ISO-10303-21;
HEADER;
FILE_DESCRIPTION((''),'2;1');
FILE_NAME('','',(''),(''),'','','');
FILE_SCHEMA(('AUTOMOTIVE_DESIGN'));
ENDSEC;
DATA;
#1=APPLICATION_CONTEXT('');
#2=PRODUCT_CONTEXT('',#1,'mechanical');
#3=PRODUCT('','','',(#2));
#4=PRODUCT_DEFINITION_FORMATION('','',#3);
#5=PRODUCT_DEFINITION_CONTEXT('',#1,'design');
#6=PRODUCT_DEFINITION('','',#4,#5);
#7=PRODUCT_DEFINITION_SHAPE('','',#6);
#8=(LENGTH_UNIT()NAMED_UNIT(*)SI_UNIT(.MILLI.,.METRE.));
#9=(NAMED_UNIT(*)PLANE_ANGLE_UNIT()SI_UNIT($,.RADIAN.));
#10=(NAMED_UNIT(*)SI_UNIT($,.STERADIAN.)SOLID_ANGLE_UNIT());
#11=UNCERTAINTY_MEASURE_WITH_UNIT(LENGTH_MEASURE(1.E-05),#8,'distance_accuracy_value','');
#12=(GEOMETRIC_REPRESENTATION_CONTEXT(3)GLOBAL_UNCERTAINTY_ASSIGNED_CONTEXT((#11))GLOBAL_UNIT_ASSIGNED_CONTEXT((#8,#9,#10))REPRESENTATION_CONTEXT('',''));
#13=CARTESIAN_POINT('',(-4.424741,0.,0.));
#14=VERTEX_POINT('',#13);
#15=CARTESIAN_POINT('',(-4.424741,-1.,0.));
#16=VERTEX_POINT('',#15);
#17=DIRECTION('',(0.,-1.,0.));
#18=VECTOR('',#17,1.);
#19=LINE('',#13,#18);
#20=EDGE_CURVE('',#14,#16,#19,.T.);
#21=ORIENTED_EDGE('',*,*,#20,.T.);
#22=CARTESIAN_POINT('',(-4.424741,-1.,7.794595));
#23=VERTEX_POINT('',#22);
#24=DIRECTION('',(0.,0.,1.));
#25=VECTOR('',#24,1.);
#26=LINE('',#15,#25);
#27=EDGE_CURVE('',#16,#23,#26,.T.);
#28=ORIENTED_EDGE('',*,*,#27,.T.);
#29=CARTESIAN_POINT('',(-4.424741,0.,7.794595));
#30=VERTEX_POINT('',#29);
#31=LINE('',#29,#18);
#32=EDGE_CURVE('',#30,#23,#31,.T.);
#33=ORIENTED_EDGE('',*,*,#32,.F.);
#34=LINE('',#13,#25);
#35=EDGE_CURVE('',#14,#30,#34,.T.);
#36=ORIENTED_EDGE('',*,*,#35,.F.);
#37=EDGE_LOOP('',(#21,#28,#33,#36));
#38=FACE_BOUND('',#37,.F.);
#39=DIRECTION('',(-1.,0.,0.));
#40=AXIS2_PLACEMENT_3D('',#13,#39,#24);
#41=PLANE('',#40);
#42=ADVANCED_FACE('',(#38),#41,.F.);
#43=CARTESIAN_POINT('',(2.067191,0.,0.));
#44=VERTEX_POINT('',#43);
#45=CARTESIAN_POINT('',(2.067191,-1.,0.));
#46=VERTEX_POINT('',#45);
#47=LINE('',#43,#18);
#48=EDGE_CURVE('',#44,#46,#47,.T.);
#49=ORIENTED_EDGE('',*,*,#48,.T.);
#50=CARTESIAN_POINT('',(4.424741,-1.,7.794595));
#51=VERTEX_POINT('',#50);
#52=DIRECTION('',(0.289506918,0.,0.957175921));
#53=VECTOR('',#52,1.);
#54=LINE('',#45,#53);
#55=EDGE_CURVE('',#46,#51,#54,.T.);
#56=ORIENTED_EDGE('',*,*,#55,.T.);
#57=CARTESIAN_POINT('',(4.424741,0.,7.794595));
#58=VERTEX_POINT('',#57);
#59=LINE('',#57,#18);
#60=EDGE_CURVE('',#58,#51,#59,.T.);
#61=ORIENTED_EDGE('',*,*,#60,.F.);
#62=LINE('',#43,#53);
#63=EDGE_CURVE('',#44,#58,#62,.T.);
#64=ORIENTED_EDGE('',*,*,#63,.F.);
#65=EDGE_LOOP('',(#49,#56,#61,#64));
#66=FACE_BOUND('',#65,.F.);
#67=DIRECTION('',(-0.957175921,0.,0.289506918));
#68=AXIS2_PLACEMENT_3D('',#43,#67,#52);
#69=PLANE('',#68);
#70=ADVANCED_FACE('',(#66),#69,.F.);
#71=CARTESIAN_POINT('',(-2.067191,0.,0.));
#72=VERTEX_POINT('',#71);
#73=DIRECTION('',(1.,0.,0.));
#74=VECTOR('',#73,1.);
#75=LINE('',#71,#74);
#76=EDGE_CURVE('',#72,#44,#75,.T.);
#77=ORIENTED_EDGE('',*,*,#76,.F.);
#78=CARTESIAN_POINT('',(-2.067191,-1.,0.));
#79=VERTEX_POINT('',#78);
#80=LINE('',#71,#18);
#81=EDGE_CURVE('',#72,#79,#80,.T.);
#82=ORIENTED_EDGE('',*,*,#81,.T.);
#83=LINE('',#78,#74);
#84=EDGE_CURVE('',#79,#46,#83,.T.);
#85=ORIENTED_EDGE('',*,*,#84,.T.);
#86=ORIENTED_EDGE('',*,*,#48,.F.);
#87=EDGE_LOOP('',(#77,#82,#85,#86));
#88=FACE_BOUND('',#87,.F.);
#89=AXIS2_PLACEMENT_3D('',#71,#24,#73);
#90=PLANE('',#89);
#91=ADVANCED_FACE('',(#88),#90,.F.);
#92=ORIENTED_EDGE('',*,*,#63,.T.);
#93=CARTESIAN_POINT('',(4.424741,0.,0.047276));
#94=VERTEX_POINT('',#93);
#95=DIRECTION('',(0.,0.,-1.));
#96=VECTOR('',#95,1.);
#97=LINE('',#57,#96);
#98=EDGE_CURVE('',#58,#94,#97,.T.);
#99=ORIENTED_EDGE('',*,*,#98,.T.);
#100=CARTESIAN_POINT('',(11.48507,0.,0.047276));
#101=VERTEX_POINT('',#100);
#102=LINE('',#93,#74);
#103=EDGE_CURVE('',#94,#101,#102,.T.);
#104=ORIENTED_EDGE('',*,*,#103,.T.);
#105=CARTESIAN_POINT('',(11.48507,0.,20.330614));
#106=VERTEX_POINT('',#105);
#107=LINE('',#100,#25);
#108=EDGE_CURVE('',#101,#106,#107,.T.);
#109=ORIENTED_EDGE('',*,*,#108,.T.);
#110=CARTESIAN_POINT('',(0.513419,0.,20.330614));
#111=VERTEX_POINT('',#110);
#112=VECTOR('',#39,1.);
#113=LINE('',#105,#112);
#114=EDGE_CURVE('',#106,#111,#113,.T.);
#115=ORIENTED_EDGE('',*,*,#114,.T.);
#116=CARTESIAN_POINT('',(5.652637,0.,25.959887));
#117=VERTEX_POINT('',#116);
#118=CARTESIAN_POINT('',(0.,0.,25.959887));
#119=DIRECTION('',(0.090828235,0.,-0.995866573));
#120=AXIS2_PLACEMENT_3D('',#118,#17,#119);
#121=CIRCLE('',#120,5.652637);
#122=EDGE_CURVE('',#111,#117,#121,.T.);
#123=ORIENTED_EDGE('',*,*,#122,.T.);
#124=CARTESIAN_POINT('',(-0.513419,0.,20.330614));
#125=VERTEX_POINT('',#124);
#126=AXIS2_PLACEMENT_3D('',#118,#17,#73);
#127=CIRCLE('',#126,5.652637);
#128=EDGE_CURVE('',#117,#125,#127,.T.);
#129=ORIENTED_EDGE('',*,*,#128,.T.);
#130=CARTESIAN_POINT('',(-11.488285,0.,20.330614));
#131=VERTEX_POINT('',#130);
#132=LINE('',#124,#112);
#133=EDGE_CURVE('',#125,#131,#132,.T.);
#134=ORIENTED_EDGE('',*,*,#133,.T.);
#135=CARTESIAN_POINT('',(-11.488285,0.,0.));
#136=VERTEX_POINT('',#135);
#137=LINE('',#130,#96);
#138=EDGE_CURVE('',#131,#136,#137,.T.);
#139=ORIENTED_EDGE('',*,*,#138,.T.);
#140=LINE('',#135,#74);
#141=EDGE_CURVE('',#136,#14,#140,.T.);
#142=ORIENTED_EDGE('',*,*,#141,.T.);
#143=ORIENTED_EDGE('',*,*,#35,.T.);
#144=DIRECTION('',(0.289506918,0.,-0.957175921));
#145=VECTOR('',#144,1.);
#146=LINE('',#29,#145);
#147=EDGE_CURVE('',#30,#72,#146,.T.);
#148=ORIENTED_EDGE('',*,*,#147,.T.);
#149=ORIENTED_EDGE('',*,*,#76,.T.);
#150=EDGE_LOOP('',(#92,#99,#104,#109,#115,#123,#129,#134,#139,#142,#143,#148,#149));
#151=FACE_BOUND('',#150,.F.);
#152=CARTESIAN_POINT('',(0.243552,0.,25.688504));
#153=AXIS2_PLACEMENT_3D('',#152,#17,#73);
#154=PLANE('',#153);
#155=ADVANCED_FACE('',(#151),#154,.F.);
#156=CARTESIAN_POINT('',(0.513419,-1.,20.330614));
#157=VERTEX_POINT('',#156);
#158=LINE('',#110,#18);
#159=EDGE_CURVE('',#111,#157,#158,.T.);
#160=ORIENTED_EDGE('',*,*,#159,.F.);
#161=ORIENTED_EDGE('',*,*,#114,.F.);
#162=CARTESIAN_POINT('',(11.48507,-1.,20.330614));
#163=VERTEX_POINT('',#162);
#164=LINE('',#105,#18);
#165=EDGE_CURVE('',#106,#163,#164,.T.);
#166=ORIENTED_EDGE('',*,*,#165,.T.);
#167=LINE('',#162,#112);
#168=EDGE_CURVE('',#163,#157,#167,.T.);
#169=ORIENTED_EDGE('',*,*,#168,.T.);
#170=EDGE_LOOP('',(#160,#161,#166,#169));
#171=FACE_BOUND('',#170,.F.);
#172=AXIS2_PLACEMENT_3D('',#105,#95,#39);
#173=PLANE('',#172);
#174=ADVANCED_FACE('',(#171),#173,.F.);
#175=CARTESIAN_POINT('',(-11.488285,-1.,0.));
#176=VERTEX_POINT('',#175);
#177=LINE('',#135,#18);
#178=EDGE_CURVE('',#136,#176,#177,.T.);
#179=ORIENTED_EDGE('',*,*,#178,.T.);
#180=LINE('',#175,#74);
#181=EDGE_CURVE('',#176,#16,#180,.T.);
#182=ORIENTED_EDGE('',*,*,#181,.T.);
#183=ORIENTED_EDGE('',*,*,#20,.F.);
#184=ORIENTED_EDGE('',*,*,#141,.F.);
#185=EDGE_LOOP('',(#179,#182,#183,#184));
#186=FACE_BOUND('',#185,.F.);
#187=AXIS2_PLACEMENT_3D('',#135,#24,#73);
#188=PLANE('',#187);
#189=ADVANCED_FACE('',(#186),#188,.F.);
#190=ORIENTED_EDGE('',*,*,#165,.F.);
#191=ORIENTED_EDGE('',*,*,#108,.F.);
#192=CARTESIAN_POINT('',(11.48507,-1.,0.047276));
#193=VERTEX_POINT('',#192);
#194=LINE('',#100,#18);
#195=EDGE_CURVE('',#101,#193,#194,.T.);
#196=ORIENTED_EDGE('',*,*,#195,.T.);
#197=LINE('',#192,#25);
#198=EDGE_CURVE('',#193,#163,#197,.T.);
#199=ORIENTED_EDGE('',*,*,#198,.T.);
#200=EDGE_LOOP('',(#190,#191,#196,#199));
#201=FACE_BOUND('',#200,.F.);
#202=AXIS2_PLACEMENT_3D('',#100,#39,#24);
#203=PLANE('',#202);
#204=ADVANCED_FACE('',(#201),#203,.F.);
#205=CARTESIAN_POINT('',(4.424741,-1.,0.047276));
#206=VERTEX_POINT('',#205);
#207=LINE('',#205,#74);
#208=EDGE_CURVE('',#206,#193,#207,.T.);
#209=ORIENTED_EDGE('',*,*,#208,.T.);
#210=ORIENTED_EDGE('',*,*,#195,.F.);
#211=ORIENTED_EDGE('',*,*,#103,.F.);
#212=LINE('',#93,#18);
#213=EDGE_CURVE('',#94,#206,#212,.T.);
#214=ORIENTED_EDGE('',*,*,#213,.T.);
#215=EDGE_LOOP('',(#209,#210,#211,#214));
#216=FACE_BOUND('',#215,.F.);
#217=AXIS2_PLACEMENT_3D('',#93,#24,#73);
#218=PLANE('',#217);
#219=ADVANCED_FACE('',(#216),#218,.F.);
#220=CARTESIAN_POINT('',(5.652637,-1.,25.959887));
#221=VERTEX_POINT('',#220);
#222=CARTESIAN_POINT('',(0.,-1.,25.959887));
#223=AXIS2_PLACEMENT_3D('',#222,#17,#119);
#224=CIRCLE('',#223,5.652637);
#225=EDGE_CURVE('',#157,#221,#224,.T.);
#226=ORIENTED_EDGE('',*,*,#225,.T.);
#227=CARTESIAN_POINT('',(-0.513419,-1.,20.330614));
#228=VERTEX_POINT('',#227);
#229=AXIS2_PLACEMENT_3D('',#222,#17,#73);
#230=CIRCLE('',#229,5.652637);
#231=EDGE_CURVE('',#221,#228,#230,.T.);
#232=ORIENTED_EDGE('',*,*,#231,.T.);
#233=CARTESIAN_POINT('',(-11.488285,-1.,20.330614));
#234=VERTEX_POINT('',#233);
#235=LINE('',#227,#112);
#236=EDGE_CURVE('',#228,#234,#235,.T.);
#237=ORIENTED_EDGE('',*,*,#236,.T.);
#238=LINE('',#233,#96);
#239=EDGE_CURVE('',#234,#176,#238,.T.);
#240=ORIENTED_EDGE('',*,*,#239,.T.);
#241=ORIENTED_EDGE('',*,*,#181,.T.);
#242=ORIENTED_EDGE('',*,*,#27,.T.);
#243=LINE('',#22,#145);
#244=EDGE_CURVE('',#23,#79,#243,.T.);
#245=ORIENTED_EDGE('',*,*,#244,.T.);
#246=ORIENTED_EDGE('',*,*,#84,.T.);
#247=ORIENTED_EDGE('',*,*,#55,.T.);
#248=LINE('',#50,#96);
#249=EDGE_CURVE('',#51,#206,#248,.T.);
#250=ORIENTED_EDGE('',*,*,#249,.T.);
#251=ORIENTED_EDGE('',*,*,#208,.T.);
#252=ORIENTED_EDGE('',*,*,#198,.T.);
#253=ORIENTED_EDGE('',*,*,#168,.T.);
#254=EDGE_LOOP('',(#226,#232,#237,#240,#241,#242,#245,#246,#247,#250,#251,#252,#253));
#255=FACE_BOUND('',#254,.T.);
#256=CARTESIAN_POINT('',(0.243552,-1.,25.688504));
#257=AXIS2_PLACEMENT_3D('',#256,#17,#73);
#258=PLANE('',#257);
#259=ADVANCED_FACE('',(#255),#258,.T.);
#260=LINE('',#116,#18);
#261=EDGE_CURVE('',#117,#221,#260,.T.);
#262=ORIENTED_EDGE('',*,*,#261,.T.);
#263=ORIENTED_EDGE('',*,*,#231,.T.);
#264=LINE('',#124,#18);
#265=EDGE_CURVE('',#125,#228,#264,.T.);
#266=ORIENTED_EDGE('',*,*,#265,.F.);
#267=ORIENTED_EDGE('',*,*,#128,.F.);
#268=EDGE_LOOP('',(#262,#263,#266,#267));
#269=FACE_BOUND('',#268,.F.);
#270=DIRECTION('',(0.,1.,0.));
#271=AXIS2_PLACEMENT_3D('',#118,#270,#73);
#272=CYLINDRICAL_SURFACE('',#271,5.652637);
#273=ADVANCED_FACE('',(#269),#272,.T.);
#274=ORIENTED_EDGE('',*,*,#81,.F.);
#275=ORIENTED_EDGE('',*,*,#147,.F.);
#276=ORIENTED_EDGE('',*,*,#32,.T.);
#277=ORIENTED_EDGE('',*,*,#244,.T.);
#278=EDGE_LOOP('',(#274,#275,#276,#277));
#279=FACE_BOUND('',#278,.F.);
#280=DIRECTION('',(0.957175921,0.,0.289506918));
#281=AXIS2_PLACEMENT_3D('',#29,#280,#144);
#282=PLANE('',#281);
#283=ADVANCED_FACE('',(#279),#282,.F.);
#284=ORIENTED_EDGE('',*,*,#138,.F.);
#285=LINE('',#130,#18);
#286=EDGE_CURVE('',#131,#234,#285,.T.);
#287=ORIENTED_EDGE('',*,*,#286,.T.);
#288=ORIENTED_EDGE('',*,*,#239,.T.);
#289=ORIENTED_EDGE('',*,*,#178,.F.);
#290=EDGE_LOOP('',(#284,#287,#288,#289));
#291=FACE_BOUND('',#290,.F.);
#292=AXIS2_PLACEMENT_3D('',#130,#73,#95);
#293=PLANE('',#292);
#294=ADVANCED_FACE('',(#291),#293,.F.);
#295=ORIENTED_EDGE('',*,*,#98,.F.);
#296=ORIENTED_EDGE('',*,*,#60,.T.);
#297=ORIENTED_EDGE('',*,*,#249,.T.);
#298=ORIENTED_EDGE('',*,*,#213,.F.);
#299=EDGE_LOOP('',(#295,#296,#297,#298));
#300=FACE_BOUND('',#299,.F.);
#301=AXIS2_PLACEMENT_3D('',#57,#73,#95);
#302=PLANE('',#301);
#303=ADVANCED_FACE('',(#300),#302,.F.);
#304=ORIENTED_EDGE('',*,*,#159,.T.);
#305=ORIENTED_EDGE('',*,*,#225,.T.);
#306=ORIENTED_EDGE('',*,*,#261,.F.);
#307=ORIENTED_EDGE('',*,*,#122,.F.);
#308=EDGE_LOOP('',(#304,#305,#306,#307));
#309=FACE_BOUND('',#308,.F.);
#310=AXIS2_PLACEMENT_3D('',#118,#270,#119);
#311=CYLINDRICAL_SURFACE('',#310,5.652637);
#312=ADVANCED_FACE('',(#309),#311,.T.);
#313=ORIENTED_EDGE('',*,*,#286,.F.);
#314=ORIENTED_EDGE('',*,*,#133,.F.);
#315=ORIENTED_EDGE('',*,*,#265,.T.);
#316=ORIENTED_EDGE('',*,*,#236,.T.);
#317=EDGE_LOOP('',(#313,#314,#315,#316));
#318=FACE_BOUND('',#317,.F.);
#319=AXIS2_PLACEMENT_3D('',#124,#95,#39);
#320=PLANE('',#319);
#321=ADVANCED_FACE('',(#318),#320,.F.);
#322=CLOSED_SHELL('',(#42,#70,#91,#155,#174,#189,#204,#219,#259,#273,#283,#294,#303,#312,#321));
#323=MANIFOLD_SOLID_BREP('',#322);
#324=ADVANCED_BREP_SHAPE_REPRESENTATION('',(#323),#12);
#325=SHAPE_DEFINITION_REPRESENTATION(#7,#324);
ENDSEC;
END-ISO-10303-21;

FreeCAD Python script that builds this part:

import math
import FreeCAD as App
import Part
import Sketcher

doc = App.newDocument("Part")
params = doc.addObject("Spreadsheet::Sheet", "Params")
for row, (alias, value) in enumerate([
    ("pad1_length", "1 mm"),
], start=1):
    params.set(f"A{row}", alias)
    params.set(f"B{row}", "=" + value)
    params.setAlias(f"B{row}", alias)

body = doc.addObject("PartDesign::Body", "Body")

sketch1 = body.newObject("Sketcher::SketchObject", "Sketch")
sketch1.AttachmentSupport = (doc.getObject("XZ_Plane"), [""])
sketch1.MapMode = "FlatFace"
sketch1.addGeometry([
    Part.ArcOfCircle(Part.Circle(App.Vector(0, 26, 0), App.Vector(0, 0, 1), 5.7), math.radians(-85), math.radians(0)),
    Part.ArcOfCircle(Part.Circle(App.Vector(0, 26, 0), App.Vector(0, 0, 1), 5.7), math.radians(0), math.radians(265)),
    Part.LineSegment(App.Vector(-0.5, 20.3, 0), App.Vector(-11.5, 20.3, 0)),
    Part.LineSegment(App.Vector(-11.5, 20.3, 0), App.Vector(-11.5, 0, 0)),
    Part.LineSegment(App.Vector(-11.5, 0, 0), App.Vector(-4.4, 0, 0)),
    Part.LineSegment(App.Vector(-4.4, 0, 0), App.Vector(-4.4, 7.8, 0)),
    Part.LineSegment(App.Vector(-4.4, 7.8, 0), App.Vector(-2.1, 0, 0)),
    Part.LineSegment(App.Vector(-2.1, 0, 0), App.Vector(2.1, 0, 0)),
    Part.LineSegment(App.Vector(2.1, 0, 0), App.Vector(4.4, 7.8, 0)),
    Part.LineSegment(App.Vector(4.4, 7.8, 0), App.Vector(4.4, 0, 0)),
    Part.LineSegment(App.Vector(4.4, 0, 0), App.Vector(11.5, 0, 0)),
    Part.LineSegment(App.Vector(11.5, 0, 0), App.Vector(11.5, 20.3, 0)),
    Part.LineSegment(App.Vector(11.5, 20.3, 0), App.Vector(0.5, 20.3, 0)),
], False)
sketch1.addConstraint([
    Sketcher.Constraint("Tangent", 0, 2, 1, 1),
    Sketcher.Constraint("Coincident", 1, 2, 2, 1),
    Sketcher.Constraint("Coincident", 2, 2, 3, 1),
    Sketcher.Constraint("Coincident", 3, 2, 4, 1),
    Sketcher.Constraint("Coincident", 4, 2, 5, 1),
    Sketcher.Constraint("Coincident", 5, 2, 6, 1),
    Sketcher.Constraint("Coincident", 6, 2, 7, 1),
    Sketcher.Constraint("Coincident", 7, 2, 8, 1),
    Sketcher.Constraint("Coincident", 8, 2, 9, 1),
    Sketcher.Constraint("Coincident", 9, 2, 10, 1),
    Sketcher.Constraint("Coincident", 10, 2, 11, 1),
    Sketcher.Constraint("Coincident", 11, 2, 12, 1),
    Sketcher.Constraint("Coincident", 12, 2, 0, 1),
    Sketcher.Constraint("Horizontal", 2),
    Sketcher.Constraint("Vertical", 3),
    Sketcher.Constraint("Horizontal", 4),
    Sketcher.Constraint("Vertical", 5),
    Sketcher.Constraint("Horizontal", 7),
    Sketcher.Constraint("Vertical", 9),
    Sketcher.Constraint("Horizontal", 10),
    Sketcher.Constraint("Vertical", 11),
    Sketcher.Constraint("Horizontal", 12),
    Sketcher.Constraint("Equal", 0, 1),
    Sketcher.Constraint("Symmetric", 6, 2, 7, 2, -1, 1),
    Sketcher.Constraint("Symmetric", 5, 2, 8, 2, -2),
    Sketcher.Constraint("Symmetric", 1, 2, 12, 2, -2),
    Sketcher.Constraint("PointOnObject", 3, 2, -1),
    Sketcher.Constraint("Horizontal", 1, 3, 0, 2),
    Sketcher.Constraint("Radius", 0, 5.652637),
    Sketcher.Constraint("DistanceX", 10, 1, 10, 2, 7.06033),
    Sketcher.Constraint("DistanceX", 12, 2, 12, 1, 10.971651),
    Sketcher.Constraint("DistanceY", 9, 2, 9, 1, 7.747319),
    Sketcher.Constraint("DistanceY", 11, 1, 11, 2, 20.283338),
    Sketcher.Constraint("DistanceX", 2, 2, 2, 1, 10.974866),
    Sketcher.Constraint("DistanceX", 7, 1, 7, 2, 4.134383),
    Sketcher.Constraint("DistanceY", 3, 2, 3, 1, 20.330614),
    Sketcher.Constraint("DistanceX", 1, 2, -1, 1, 0.513419),
])
pad1 = body.newObject("PartDesign::Pad", "Pad")
pad1.Profile = sketch1
pad1.setExpression("Length", "Params.pad1_length")

doc.recompute()
